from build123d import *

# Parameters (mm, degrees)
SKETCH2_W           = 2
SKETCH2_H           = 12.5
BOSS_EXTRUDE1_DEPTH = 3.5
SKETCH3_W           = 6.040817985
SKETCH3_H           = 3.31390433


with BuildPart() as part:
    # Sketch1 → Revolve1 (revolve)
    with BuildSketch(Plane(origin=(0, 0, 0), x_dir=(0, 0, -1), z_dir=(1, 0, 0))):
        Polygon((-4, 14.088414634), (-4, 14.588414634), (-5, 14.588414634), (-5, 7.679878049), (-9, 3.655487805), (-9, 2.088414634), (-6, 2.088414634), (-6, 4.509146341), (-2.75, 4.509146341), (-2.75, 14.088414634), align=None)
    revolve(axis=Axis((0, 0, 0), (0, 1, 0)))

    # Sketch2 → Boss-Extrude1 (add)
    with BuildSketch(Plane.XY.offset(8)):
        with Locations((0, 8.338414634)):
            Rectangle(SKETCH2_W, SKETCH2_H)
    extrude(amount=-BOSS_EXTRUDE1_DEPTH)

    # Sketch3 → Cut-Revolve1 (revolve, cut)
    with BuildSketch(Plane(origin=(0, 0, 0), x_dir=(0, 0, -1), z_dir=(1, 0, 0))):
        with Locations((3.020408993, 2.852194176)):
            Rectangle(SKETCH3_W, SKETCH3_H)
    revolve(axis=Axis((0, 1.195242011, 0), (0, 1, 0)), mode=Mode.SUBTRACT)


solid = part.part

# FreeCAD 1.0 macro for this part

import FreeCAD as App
import Part
import Sketcher
from FreeCAD import Vector

doc = App.newDocument("Part")
body = doc.addObject("PartDesign::Body", "Body")

sketch1 = body.newObject("Sketcher::SketchObject", "Sketch")
sketch1.AttachmentSupport = (doc.getObject("YZ_Plane"), [""])
sketch1.MapMode = "FlatFace"
sketch1.addGeometry([
    Part.LineSegment(Vector(14.1, 4, 0), Vector(14.6, 4, 0)),
    Part.LineSegment(Vector(14.6, 4, 0), Vector(14.6, 5, 0)),
    Part.LineSegment(Vector(14.6, 5, 0), Vector(7.7, 5, 0)),
    Part.LineSegment(Vector(7.7, 5, 0), Vector(3.7, 9, 0)),
    Part.LineSegment(Vector(3.7, 9, 0), Vector(2.1, 9, 0)),
    Part.LineSegment(Vector(2.1, 9, 0), Vector(2.1, 6, 0)),
    Part.LineSegment(Vector(2.1, 6, 0), Vector(4.5, 6, 0)),
    Part.LineSegment(Vector(4.5, 6, 0), Vector(4.5, 2.8, 0)),
    Part.LineSegment(Vector(4.5, 2.8, 0), Vector(14.1, 2.8, 0)),
    Part.LineSegment(Vector(14.1, 2.8, 0), Vector(14.1, 4, 0)),
], False)
sketch1.addConstraint([
    Sketcher.Constraint("Coincident", 0, 2, 1, 1),
    Sketcher.Constraint("Coincident", 1, 2, 2, 1),
    Sketcher.Constraint("Coincident", 2, 2, 3, 1),
    Sketcher.Constraint("Coincident", 3, 2, 4, 1),
    Sketcher.Constraint("Coincident", 4, 2, 5, 1),
    Sketcher.Constraint("Coincident", 5, 2, 6, 1),
    Sketcher.Constraint("Coincident", 6, 2, 7, 1),
    Sketcher.Constraint("Coincident", 7, 2, 8, 1),
    Sketcher.Constraint("Coincident", 8, 2, 9, 1),
    Sketcher.Constraint("Coincident", 9, 2, 0, 1),
    Sketcher.Constraint("Horizontal", 0),
    Sketcher.Constraint("Vertical", 1),
    Sketcher.Constraint("Horizontal", 2),
    Sketcher.Constraint("Horizontal", 4),
    Sketcher.Constraint("Vertical", 5),
    Sketcher.Constraint("Horizontal", 6),
    Sketcher.Constraint("Vertical", 7),
    Sketcher.Constraint("Horizontal", 8),
    Sketcher.Constraint("Vertical", 9),
    Sketcher.Constraint("DistanceY", 1, 1, 1, 2, 1.0),
    Sketcher.Constraint("DistanceY", 5, 2, 5, 1, 3.0),
    Sketcher.Constraint("DistanceX", 0, 1, 0, 2, 0.5),
    Sketcher.Constraint("DistanceY", -1, 1, 0, 2, 4.0),
    Sketcher.Constraint("DistanceY", -1, 1, 3, 2, 9.0),
    Sketcher.Constraint("DistanceY", 7, 2, 7, 1, 3.25),
    Sketcher.Constraint("DistanceX", 4, 2, 1, 2, 12.5),
    Sketcher.Constraint("DistanceX", 6, 1, 6, 2, 2.420732),
    Sketcher.Constraint("DistanceX", 2, 2, 2, 1, 6.908537),
    Sketcher.Constraint("DistanceX", 4, 2, 4, 1, 1.567073),
    Sketcher.Constraint("DistanceX", -1, 1, 2, 2, 7.679878),
])
revolution = body.newObject("PartDesign::Revolution", "Revolution")
revolution.Profile = sketch1
revolution.ReferenceAxis = (sketch1, ["H_Axis"])
revolution.Angle = 360

sketch2 = body.newObject("Sketcher::SketchObject", "Sketch001")
sketch2.AttachmentSupport = (doc.getObject("XY_Plane"), [""])
sketch2.MapMode = "FlatFace"
sketch2.AttachmentOffset = App.Placement(Vector(0, 0, 8), App.Rotation())
sketch2.addGeometry([
    Part.LineSegment(Vector(-1, 14.6, 0), Vector(-1, 2.1, 0)),
    Part.LineSegment(Vector(-1, 2.1, 0), Vector(1, 2.1, 0)),
    Part.LineSegment(Vector(1, 2.1, 0), Vector(1, 14.6, 0)),
    Part.LineSegment(Vector(1, 14.6, 0), Vector(-1, 14.6, 0)),
], False)
sketch2.addConstraint([
    Sketcher.Constraint("Coincident", 0, 2, 1, 1),
    Sketcher.Constraint("Coincident", 1, 2, 2, 1),
    Sketcher.Constraint("Coincident", 2, 2, 3, 1),
    Sketcher.Constraint("Coincident", 3, 2, 0, 1),
    Sketcher.Constraint("Vertical", 0),
    Sketcher.Constraint("Horizontal", 1),
    Sketcher.Constraint("Vertical", 2),
    Sketcher.Constraint("Horizontal", 3),
    Sketcher.Constraint("DistanceX", 1, 1, 1, 2, 2.0),
    Sketcher.Constraint("DistanceY", 0, 2, 0, 1, 12.5),
    Sketcher.Constraint("DistanceX", 0, 2, -1, 1, 1.0),
    Sketcher.Constraint("DistanceY", -1, 1, 0, 2, 2.088415),
])
pad1 = body.newObject("PartDesign::Pad", "Pad")
pad1.Profile = sketch2
pad1.Length = 3.5
pad1.Reversed = True

sketch3 = body.newObject("Sketcher::SketchObject", "Sketch002")
sketch3.AttachmentSupport = (doc.getObject("YZ_Plane"), [""])
sketch3.MapMode = "FlatFace"
sketch3.addGeometry([
    Part.LineSegment(Vector(4.5, 0, 0), Vector(1.2, 0, 0)),
    Part.LineSegment(Vector(1.2, 0, 0), Vector(1.2, -6, 0)),
    Part.LineSegment(Vector(1.2, -6, 0), Vector(4.5, -6, 0)),
    Part.LineSegment(Vector(4.5, -6, 0), Vector(4.5, 0, 0)),
], False)
sketch3.addConstraint([
    Sketcher.Constraint("Coincident", 0, 2, 1, 1),
    Sketcher.Constraint("Coincident", 1, 2, 2, 1),
    Sketcher.Constraint("Coincident", 2, 2, 3, 1),
    Sketcher.Constraint("Coincident", 3, 2, 0, 1),
    Sketcher.Constraint("Horizontal", 0),
    Sketcher.Constraint("Vertical", 1),
    Sketcher.Constraint("Horizontal", 2),
    Sketcher.Constraint("Vertical", 3),
    Sketcher.Constraint("PointOnObject", 0, 2, -1),
    Sketcher.Constraint("DistanceX", 0, 2, 0, 1, 3.313904),
    Sketcher.Constraint("DistanceY", 1, 2, 1, 1, 6.040818),
    Sketcher.Constraint("DistanceX", -1, 1, 0, 2, 1.195242),
])
groove = body.newObject("PartDesign::Groove", "Groove")
groove.Profile = sketch3
groove.ReferenceAxis = (sketch3, ["H_Axis"])
groove.Angle = 360

doc.recompute()
